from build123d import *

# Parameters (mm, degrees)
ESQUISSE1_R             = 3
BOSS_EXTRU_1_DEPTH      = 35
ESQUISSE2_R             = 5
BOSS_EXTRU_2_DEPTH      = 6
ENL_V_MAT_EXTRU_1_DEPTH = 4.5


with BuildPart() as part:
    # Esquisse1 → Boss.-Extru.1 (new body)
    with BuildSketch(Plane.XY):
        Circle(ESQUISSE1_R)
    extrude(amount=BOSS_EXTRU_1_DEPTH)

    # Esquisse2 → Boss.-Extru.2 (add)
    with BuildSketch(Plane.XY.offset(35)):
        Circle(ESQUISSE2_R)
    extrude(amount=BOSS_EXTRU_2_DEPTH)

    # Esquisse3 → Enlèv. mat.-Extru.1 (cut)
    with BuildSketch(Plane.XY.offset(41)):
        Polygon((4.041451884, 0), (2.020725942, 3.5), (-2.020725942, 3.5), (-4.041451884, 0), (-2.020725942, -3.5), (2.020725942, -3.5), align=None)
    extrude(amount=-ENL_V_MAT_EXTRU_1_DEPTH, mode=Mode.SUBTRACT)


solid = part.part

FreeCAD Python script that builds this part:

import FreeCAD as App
import Part
import Sketcher

V = App.Vector
Q = App.Units.Quantity


def add_polygon(sketch, points):
    """Adds a closed chain of lines whose ends are joined by coincident constraints."""
    first, n = sketch.GeometryCount, len(points)
    for a, b in zip(points, points[1:] + points[:1]):
        sketch.addGeometry(Part.LineSegment(App.Vector(*a, 0), App.Vector(*b, 0)), False)
    for i in range(n):
        sketch.addConstraint(Sketcher.Constraint("Coincident", first + i, 2, first + (i + 1) % n, 1))

doc = App.newDocument("Part")
body = doc.addObject("PartDesign::Body", "Body")

# Sketch on XY plane
sketch1 = body.newObject("Sketcher::SketchObject", "Sketch")
sketch1.AttachmentSupport = (doc.getObject("XY_Plane"), [""])
sketch1.MapMode = "FlatFace"
sketch1.addGeometry(Part.Circle(V(0, 0, 0), V(0, 0, 1), 3), False)
sketch1.addConstraint([
    Sketcher.Constraint("Coincident", 0, 3, -1, 1),
    Sketcher.Constraint("Diameter", 0, Q("6 mm")),
])
pad1 = body.newObject("PartDesign::Pad", "Pad")
pad1.Profile = sketch1
pad1.Length = 35

# Sketch on XY plane
sketch2 = body.newObject("Sketcher::SketchObject", "Sketch001")
sketch2.AttachmentSupport = (doc.getObject("XY_Plane"), [""])
sketch2.MapMode = "FlatFace"
sketch2.AttachmentOffset = App.Placement(V(0, 0, 35), App.Rotation())
sketch2.addGeometry(Part.Circle(V(0, 0, 0), V(0, 0, 1), 5), False)
sketch2.addConstraint([
    Sketcher.Constraint("Coincident", 0, 3, -1, 1),
    Sketcher.Constraint("Diameter", 0, Q("10 mm")),
])
pad2 = body.newObject("PartDesign::Pad", "Pad001")
pad2.Profile = sketch2
pad2.Length = 6

# Sketch on XY plane
sketch3 = body.newObject("Sketcher::SketchObject", "Sketch002")
sketch3.AttachmentSupport = (doc.getObject("XY_Plane"), [""])
sketch3.MapMode = "FlatFace"
sketch3.AttachmentOffset = App.Placement(V(0, 0, 41), App.Rotation())
add_polygon(sketch3, [(4, 0), (2, 3.5), (-2, 3.5), (-4, 0), (-2, -3.5), (2, -3.5)])  # lines 0-5
sketch3.addConstraint([
    Sketcher.Constraint("Horizontal", 1),
    Sketcher.Constraint("Horizontal", 4),
    Sketcher.Constraint("Symmetric", 0, 2, 3, 2, -1, 1),
    Sketcher.Constraint("Symmetric", 2, 2, 5, 2, -1, 1),
    Sketcher.Constraint("PointOnObject", 2, 2, -1),
    Sketcher.Constraint("Parallel", 2, 5),
    Sketcher.Constraint("Vertical", 1, 2, 3, 2),
    Sketcher.Constraint("Angle", 0, Q("120 deg")),
    Sketcher.Constraint("DistanceY", 3, 2, 1, 2, Q("7 mm")),
    Sketcher.Constraint("DistanceX", 1, 2, 1, 1, Q("4.041452 mm")),
])
pocket1 = body.newObject("PartDesign::Pocket", "Pocket")
pocket1.Profile = sketch3
pocket1.Length = 4.5

doc.recompute()
